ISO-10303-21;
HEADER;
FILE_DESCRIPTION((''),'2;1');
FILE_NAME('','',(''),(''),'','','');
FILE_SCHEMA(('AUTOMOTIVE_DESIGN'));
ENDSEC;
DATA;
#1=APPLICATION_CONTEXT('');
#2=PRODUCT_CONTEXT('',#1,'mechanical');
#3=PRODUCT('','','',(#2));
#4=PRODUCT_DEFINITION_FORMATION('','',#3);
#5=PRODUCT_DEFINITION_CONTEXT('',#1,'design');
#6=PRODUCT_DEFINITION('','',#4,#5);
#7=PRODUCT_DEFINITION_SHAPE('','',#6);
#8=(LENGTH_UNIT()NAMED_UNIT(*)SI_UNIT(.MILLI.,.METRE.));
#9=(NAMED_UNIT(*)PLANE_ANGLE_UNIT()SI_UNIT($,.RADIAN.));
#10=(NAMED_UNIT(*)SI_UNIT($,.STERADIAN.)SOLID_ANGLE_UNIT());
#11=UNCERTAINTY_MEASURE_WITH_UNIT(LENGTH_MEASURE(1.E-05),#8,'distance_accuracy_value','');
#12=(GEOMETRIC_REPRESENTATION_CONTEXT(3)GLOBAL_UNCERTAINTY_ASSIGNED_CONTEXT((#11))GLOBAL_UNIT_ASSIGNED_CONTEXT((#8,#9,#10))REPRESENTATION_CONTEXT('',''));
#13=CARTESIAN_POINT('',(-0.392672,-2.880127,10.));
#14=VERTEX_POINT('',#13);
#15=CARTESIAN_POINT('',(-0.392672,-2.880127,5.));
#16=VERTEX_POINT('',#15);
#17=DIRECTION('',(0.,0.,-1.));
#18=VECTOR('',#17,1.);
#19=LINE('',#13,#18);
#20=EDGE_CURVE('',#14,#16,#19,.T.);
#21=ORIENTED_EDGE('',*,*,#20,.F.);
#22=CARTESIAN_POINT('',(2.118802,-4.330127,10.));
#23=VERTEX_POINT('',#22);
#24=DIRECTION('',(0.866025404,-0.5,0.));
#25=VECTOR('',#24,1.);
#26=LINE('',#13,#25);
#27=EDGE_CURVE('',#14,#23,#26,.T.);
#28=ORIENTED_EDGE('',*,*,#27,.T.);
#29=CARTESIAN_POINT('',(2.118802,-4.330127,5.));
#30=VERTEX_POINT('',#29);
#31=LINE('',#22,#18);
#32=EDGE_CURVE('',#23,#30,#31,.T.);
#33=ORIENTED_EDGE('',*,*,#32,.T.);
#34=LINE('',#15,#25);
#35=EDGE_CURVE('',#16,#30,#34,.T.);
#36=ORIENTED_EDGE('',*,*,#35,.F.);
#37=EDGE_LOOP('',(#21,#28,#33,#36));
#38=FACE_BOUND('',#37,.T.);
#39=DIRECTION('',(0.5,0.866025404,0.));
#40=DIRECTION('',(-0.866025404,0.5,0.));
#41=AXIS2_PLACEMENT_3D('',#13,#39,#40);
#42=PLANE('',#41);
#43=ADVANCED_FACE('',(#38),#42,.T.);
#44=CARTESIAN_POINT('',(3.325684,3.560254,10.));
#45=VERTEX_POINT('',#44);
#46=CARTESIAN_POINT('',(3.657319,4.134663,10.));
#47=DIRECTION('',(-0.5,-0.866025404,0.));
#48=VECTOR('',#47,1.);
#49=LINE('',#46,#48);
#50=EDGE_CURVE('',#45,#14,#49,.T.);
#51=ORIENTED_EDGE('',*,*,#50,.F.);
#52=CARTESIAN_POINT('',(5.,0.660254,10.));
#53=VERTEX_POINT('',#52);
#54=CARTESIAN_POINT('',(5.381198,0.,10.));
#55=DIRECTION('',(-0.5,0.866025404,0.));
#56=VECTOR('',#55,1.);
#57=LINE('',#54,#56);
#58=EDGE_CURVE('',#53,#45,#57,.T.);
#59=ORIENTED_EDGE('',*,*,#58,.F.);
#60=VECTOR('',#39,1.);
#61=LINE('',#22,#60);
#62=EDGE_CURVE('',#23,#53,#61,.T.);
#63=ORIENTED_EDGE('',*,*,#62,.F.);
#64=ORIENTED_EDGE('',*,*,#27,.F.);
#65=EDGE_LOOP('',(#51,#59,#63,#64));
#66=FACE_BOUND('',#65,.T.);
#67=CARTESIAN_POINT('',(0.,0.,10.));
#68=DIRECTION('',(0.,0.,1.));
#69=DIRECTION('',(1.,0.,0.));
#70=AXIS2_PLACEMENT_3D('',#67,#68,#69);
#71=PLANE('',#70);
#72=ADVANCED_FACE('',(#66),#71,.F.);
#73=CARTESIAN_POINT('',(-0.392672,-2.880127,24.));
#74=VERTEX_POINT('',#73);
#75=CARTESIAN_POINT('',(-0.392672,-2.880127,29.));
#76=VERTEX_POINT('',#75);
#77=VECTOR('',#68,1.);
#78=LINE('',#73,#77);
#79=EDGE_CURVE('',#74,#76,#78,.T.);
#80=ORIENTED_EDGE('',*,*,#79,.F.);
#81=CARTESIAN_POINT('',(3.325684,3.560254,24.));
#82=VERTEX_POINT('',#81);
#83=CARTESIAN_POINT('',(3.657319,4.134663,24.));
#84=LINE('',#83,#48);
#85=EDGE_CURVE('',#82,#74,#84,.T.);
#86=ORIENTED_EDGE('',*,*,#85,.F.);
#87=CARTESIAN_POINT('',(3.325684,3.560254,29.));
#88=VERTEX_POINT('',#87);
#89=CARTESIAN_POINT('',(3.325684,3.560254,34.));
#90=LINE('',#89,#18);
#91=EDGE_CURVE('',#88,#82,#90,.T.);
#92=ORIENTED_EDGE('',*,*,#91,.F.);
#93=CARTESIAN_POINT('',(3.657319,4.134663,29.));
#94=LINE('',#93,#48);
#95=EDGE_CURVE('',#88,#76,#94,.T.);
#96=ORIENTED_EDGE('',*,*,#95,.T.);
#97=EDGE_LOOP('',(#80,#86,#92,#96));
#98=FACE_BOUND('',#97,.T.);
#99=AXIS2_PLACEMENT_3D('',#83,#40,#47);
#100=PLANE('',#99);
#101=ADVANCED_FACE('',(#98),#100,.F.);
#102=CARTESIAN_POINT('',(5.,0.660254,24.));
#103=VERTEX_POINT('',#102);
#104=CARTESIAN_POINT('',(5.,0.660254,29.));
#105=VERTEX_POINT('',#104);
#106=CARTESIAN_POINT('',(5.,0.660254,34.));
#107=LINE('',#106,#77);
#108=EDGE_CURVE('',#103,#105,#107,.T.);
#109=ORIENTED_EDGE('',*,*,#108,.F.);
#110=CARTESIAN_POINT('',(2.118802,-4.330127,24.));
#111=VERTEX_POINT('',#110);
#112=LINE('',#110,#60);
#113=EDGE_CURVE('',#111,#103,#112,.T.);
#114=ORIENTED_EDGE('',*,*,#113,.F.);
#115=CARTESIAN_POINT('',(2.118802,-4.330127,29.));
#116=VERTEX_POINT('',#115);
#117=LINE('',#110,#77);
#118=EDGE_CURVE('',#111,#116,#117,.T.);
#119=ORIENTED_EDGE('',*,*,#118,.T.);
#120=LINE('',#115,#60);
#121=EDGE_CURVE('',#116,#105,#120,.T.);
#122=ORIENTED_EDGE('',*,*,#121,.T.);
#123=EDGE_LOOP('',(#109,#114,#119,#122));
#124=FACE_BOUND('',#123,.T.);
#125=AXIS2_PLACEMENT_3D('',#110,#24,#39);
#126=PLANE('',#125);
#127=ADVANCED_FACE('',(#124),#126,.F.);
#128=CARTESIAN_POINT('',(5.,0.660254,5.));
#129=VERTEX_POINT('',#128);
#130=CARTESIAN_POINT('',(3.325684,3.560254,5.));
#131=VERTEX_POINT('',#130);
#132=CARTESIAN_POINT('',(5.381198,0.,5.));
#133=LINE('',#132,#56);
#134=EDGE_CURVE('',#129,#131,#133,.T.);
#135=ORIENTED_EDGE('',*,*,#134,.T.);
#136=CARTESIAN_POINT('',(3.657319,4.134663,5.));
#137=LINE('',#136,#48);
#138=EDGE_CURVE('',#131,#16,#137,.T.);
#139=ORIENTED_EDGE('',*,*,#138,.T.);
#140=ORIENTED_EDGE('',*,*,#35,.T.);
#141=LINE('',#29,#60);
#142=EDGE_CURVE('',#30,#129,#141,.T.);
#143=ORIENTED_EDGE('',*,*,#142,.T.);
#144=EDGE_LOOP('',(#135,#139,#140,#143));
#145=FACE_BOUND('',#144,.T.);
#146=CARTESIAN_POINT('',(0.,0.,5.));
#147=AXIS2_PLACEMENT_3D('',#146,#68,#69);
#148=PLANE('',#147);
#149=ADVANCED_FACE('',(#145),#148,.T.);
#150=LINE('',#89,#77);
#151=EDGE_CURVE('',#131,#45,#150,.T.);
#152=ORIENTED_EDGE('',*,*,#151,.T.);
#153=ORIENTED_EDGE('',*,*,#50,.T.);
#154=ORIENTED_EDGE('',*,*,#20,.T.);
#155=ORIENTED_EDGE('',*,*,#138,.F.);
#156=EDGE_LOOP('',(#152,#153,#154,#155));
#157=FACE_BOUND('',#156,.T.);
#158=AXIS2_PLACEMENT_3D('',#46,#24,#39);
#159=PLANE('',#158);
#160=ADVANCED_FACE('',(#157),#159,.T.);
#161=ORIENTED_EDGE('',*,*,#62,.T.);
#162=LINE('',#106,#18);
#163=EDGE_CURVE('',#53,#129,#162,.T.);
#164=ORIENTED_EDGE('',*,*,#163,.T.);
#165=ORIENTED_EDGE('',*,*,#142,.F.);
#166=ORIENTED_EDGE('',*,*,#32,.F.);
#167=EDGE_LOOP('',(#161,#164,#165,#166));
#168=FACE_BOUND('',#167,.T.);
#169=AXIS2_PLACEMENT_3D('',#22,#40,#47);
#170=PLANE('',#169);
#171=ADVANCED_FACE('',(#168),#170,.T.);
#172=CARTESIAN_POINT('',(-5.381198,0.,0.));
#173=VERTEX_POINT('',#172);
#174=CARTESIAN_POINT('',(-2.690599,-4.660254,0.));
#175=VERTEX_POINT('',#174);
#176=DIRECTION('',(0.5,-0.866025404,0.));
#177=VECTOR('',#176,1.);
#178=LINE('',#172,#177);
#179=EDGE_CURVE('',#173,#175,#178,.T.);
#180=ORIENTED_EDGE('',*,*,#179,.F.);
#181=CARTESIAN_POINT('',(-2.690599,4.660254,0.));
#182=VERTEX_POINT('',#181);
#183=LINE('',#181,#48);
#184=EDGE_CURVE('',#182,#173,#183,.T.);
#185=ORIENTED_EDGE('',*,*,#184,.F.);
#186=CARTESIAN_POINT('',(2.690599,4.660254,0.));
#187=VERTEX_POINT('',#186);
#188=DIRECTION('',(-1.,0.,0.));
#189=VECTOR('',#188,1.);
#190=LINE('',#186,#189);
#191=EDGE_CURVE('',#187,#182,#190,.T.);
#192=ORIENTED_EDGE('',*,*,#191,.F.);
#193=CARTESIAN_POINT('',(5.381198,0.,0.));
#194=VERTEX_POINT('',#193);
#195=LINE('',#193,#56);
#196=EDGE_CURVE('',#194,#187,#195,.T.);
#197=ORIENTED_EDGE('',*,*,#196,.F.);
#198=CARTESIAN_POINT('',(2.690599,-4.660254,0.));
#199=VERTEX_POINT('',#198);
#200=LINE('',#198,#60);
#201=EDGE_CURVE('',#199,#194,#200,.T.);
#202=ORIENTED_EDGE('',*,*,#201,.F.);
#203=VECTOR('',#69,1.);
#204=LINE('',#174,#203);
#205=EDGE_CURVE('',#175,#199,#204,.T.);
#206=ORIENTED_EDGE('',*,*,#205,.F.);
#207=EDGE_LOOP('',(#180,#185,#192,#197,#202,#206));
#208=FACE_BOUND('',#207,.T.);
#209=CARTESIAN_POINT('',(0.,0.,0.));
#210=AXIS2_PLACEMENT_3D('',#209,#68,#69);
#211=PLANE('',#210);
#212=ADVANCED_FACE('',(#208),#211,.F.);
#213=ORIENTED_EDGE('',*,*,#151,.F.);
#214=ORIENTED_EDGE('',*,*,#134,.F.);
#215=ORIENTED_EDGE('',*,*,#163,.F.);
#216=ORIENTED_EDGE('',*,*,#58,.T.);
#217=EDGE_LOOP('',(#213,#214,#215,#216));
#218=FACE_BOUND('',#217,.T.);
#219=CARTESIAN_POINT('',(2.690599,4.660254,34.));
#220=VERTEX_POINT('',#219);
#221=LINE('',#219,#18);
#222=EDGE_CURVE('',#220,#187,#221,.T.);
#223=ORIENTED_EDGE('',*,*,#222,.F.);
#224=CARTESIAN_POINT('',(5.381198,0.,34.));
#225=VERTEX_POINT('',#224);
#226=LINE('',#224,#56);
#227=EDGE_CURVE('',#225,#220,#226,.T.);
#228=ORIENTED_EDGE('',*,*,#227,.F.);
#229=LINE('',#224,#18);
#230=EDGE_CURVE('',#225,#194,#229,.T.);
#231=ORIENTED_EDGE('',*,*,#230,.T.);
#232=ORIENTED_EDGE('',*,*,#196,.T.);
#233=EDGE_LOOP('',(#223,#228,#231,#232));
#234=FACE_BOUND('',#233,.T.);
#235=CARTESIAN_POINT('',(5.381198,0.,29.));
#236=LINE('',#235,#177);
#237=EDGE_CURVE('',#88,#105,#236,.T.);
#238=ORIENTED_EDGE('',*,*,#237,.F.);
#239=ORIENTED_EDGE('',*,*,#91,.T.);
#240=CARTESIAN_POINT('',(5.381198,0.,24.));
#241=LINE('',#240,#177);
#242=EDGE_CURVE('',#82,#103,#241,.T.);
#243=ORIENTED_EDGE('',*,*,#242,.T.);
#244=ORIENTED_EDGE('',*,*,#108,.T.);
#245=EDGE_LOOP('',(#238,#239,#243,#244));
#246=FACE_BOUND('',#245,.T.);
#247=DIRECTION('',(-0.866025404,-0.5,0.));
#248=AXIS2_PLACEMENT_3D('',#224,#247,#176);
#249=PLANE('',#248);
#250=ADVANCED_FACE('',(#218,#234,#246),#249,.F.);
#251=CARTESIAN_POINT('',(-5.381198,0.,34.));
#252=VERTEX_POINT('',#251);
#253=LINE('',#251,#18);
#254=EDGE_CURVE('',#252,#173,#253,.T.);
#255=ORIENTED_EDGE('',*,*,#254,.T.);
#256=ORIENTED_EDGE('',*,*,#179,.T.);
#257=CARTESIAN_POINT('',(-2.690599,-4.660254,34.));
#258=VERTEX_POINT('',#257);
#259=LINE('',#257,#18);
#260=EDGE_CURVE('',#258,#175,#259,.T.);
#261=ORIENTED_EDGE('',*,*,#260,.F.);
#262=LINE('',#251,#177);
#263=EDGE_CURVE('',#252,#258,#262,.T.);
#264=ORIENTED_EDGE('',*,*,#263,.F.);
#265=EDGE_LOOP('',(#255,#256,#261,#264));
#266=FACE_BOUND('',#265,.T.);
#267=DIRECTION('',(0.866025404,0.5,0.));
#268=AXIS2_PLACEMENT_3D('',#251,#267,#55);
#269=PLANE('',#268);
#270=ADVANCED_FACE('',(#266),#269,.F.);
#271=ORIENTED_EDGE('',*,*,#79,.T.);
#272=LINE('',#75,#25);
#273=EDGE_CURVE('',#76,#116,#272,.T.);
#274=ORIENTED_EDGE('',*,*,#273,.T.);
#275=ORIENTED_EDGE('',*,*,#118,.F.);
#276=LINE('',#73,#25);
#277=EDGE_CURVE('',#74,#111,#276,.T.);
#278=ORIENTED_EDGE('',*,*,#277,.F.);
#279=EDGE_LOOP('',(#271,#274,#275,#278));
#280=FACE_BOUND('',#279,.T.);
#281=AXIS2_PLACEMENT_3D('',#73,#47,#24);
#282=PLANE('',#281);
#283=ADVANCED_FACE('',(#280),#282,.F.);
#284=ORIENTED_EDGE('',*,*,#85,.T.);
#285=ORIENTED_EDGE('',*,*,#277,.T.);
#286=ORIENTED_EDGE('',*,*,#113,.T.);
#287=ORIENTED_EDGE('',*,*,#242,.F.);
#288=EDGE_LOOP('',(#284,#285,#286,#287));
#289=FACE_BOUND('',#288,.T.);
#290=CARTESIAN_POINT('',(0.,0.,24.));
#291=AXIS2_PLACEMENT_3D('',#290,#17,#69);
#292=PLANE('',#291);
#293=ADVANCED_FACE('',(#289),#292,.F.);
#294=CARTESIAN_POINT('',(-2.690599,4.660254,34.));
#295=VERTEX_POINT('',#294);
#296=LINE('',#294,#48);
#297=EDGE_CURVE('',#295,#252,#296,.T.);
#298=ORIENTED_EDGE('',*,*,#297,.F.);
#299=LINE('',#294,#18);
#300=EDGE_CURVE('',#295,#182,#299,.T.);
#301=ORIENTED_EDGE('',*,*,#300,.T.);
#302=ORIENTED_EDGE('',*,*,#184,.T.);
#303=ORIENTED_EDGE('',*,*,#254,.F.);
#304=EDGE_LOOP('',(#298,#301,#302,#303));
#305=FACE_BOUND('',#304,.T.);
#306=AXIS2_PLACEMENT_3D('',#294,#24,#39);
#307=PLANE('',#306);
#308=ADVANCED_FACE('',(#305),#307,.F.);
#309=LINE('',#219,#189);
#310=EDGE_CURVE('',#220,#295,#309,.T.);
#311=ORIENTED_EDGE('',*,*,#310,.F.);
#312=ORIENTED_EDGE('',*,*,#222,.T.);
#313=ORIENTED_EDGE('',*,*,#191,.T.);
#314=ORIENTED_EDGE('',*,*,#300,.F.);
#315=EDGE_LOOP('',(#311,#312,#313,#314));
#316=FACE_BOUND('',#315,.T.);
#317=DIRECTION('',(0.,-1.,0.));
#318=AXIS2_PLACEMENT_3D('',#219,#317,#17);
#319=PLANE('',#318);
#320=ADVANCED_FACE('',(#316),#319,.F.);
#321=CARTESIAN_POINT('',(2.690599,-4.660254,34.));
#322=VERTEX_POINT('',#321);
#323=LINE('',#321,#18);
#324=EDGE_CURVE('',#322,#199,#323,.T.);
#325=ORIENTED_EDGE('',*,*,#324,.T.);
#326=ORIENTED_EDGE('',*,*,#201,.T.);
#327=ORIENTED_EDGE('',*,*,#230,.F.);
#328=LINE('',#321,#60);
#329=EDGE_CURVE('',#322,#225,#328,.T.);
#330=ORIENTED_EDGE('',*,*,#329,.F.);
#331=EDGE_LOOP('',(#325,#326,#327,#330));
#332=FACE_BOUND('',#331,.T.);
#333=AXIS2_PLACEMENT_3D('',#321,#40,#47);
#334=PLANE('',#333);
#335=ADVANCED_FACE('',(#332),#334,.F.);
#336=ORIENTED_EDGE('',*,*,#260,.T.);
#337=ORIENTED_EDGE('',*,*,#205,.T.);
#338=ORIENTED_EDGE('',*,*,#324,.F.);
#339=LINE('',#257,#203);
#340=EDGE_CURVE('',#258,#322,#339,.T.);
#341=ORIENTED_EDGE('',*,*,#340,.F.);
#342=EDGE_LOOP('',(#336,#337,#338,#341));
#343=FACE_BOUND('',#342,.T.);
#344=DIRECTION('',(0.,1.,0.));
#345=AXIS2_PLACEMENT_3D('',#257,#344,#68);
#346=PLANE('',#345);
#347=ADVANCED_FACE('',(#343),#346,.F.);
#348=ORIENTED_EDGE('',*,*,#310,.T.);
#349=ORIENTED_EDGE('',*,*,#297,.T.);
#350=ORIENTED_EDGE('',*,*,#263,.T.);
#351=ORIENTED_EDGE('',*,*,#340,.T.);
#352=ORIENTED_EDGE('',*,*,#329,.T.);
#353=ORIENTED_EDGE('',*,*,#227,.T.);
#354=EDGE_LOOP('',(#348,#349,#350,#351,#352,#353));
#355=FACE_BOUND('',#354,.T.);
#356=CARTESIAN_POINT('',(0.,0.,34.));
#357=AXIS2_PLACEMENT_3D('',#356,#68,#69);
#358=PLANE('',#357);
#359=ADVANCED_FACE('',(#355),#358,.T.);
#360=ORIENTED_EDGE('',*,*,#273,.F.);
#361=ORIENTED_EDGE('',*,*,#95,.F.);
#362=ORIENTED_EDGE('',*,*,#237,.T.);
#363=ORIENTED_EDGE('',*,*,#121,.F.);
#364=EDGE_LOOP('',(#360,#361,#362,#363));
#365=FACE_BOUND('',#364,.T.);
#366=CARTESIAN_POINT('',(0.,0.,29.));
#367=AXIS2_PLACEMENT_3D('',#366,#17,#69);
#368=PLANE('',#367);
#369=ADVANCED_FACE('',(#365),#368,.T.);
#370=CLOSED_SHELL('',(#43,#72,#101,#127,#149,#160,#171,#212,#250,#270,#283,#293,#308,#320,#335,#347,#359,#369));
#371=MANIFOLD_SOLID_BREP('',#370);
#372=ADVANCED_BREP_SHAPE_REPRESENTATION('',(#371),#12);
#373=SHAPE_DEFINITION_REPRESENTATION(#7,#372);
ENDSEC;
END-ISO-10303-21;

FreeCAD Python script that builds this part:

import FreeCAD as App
import Part
import Sketcher
Q = App.Units.Quantity


def add_polygon(sketch, points):
    """Adds a closed chain of lines whose ends are joined by coincident constraints."""
    first, n = sketch.GeometryCount, len(points)
    for a, b in zip(points, points[1:] + points[:1]):
        sketch.addGeometry(Part.LineSegment(App.Vector(*a, 0), App.Vector(*b, 0)), False)
    for i in range(n):
        sketch.addConstraint(Sketcher.Constraint("Coincident", first + i, 2, first + (i + 1) % n, 1))

doc = App.newDocument("Part")
params = doc.addObject("Spreadsheet::Sheet", "Params")
for row, (alias, value) in enumerate([
    ("pad1_length", "34 mm"),
    ("sketch2_length", "2.9 mm"),
    ("pocket1_length", "5 mm"),
], start=1):
    params.set(f"A{row}", alias)
    params.set(f"B{row}", "=" + value)
    params.setAlias(f"B{row}", alias)

body = doc.addObject("PartDesign::Body", "Body")

# Sketch on XY plane
sketch1 = doc.addObject("Sketcher::SketchObject", "Sketch")
body.addObject(sketch1)
sketch1.AttachmentSupport = (doc.XY_Plane, [""])
sketch1.MapMode = "FlatFace"
add_polygon(sketch1, [(-2.690599, 4.660254), (-5.381198, 0), (-2.690599, -4.660254), (2.690599, -4.660254), (5.381198, 0), (2.690599, 4.660254)])  # lines 0-5
sketch1.addConstraint(Sketcher.Constraint("Horizontal", 2))
sketch1.addConstraint(Sketcher.Constraint("Horizontal", 5))
sketch1.addConstraint(Sketcher.Constraint("Symmetric", 0, 2, 3, 2, -1, 1))
sketch1.addConstraint(Sketcher.Constraint("Symmetric", 1, 2, 4, 2, -1, 1))
sketch1.addConstraint(Sketcher.Constraint("PointOnObject", 0, 2, -1))
sketch1.addConstraint(Sketcher.Constraint("Parallel", 0, 3))
sketch1.addConstraint(Sketcher.Constraint("Vertical", 2, 2, 4, 2))
sketch1.addConstraint(Sketcher.Constraint("Angle", 0, Q("-120 deg")))
sketch1.addConstraint(Sketcher.Constraint("DistanceX", 1, 2, -1, 1, Q("2.690599 mm")))
sketch1.addConstraint(Sketcher.Constraint("DistanceX", 0, 2, 1, 2, Q("2.690599 mm")))
pad1 = doc.addObject("PartDesign::Pad", "Pad")
body.addObject(pad1)
pad1.Profile = sketch1
pad1.setExpression("Length", "Params.pad1_length")

# Sketch on XY plane
sketch2 = doc.addObject("Sketcher::SketchObject", "Sketch001")
body.addObject(sketch2)
sketch2.AttachmentSupport = (doc.XY_Plane, [""])
sketch2.MapMode = "FlatFace"
sketch2.AttachmentOffset = App.Placement(App.Vector(0, 0, 5), App.Rotation())
add_polygon(sketch2, [(3.657319, 4.134663), (-0.392672, -2.880127), (2.118802, -4.330127), (6.168793, 2.684663)])  # lines 0-3
sketch2.addConstraint(Sketcher.Constraint("Perpendicular", 0, 1))
sketch2.addConstraint(Sketcher.Constraint("Perpendicular", 1, 2))
sketch2.addConstraint(Sketcher.Constraint("Perpendicular", 2, 3))
sketch2.addConstraint(Sketcher.Constraint("Angle", 0, Q("-120 deg")))
sketch2.addConstraint(Sketcher.Constraint("Distance", 1, Q("2.9 mm")))
sketch2.addConstraint(Sketcher.Constraint("Distance", 0, Q("8.099981 mm")))
sketch2.addConstraint(Sketcher.Constraint("DistanceX", 0, 2, -1, 1, Q("0.392672 mm")))
sketch2.addConstraint(Sketcher.Constraint("DistanceY", 0, 2, -1, 1, Q("2.880127 mm")))
sketch2.setExpression("Constraints[8]", "Params.sketch2_length")
pocket1 = doc.addObject("PartDesign::Pocket", "Pocket")
body.addObject(pocket1)
pocket1.Profile = sketch2
pocket1.setExpression("Length", "Params.pocket1_length")
pocket1.Reversed = True
doc.recompute()

datumplane = doc.addObject("PartDesign::Plane", "DatumPlane")
body.addObject(datumplane)
datumplane.AttachmentSupport = (doc.XY_Plane, [""])
datumplane.MapMode = "FlatFace"
datumplane.AttachmentOffset = App.Placement(App.Vector(0, 0, 17), App.Rotation())
mirrored = doc.addObject("PartDesign::Mirrored", "Mirrored")
body.addObject(mirrored)
mirrored.Originals = [pocket1]
mirrored.MirrorPlane = (datumplane, [""])
body.Tip = mirrored

doc.recompute()
